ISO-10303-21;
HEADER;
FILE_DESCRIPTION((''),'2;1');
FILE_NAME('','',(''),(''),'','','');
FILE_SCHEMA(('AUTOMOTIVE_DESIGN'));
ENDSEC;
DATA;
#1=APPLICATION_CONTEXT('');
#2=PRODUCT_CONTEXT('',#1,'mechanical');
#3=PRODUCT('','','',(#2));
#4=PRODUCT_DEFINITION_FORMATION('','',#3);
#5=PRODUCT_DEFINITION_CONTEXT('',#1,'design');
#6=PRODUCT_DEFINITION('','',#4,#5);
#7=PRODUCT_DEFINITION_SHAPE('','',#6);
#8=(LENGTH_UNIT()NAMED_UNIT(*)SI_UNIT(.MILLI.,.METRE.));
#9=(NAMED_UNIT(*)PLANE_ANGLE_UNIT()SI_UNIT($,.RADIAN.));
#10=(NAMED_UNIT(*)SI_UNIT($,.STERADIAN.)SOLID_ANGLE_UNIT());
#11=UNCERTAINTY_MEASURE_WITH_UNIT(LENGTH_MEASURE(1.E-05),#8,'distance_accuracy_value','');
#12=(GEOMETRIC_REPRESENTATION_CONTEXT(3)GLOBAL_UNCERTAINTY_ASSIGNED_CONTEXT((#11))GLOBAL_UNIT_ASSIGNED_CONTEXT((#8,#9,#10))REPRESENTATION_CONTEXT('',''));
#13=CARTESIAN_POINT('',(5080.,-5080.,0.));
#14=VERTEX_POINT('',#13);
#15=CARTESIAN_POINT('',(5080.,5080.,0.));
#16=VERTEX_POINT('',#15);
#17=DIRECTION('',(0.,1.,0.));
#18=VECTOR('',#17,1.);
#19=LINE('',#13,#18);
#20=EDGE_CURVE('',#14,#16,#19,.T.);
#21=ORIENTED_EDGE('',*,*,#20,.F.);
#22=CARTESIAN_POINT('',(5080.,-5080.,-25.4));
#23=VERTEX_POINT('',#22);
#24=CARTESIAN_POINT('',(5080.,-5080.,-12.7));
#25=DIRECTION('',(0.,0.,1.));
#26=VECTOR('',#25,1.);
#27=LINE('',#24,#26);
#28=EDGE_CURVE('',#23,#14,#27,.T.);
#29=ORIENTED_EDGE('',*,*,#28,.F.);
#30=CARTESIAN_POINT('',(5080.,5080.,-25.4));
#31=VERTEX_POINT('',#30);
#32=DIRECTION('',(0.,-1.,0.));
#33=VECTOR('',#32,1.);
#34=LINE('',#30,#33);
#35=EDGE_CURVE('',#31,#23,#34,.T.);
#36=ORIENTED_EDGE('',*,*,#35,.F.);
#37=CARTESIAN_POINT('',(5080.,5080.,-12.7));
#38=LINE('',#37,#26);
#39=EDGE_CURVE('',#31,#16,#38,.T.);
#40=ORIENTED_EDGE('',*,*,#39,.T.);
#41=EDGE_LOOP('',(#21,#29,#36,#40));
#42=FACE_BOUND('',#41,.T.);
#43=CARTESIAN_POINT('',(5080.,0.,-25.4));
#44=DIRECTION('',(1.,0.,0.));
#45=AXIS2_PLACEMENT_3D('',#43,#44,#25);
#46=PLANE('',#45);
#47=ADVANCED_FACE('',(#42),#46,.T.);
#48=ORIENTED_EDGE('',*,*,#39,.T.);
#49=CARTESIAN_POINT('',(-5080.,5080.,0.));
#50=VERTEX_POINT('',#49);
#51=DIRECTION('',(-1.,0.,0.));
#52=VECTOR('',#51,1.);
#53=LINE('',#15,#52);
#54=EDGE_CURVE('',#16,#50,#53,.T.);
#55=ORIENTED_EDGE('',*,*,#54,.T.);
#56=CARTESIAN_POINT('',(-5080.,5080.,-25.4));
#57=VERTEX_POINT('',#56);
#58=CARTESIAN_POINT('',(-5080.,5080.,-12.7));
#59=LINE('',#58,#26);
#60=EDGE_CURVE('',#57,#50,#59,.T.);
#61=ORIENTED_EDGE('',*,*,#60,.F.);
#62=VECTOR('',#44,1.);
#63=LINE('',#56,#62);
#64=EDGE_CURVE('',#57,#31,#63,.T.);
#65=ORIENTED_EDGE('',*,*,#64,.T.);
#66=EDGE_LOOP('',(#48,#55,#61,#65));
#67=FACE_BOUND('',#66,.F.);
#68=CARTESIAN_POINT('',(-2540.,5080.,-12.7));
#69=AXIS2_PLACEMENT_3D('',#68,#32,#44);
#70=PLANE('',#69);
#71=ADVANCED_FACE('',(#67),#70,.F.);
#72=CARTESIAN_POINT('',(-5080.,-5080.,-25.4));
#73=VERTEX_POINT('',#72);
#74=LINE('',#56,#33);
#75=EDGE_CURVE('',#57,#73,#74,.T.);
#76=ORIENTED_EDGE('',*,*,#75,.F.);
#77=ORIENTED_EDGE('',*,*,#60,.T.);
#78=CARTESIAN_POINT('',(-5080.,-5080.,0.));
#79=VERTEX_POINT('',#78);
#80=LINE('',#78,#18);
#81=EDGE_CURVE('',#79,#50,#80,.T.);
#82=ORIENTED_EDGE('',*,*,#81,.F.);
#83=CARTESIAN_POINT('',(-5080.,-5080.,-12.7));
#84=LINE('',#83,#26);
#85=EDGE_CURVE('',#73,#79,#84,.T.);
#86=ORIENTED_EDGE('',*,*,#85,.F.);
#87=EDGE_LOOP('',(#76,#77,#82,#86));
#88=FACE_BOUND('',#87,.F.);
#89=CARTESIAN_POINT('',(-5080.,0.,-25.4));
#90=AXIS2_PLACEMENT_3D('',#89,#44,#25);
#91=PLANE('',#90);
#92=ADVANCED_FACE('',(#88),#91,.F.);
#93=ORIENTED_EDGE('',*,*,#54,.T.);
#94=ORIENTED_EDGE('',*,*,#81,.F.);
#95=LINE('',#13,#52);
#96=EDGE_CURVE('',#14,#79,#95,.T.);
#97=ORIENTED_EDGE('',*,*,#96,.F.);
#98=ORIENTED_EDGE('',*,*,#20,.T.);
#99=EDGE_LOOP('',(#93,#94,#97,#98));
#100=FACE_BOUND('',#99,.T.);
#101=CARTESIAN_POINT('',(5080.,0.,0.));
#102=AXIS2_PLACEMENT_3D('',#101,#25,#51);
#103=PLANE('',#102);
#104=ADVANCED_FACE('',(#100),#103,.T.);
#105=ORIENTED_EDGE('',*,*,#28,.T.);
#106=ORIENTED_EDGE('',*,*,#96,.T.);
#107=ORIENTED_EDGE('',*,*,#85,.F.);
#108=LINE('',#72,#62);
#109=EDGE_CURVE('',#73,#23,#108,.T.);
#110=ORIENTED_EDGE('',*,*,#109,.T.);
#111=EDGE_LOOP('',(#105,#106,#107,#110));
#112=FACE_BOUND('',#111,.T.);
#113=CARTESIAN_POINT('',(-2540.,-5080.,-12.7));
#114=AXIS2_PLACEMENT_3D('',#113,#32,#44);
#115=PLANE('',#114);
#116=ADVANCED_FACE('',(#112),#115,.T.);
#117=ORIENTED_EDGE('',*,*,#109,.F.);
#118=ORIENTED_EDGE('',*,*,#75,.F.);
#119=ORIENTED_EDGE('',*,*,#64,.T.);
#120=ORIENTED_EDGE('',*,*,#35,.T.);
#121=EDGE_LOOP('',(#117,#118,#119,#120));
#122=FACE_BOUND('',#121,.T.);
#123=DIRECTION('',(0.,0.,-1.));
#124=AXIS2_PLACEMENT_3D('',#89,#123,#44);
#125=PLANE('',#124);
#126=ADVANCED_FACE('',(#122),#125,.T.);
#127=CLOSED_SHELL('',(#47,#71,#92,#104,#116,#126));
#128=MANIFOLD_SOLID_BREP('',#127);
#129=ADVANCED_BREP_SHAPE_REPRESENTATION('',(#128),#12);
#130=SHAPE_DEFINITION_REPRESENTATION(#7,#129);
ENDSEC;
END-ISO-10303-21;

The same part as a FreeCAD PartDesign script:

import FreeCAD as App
import Part
import Sketcher

V = App.Vector
Q = App.Units.Quantity

doc = App.newDocument("Part")
params = doc.addObject("Spreadsheet::Sheet", "Params")
for row, (alias, value) in enumerate([
    ("sketch1_width", "400 in"),
    ("sketch1_height", "1 in"),
    ("pad1_length", "200 in"),
    ("pad1_length2", "200 in"),
], start=1):
    params.set(f"A{row}", alias)
    params.set(f"B{row}", "=" + value)
    params.setAlias(f"B{row}", alias)

body = doc.addObject("PartDesign::Body", "Body")

sketch1 = body.newObject("Sketcher::SketchObject", "Sketch")
sketch1.AttachmentSupport = (doc.getObject("XZ_Plane"), [""])
sketch1.MapMode = "FlatFace"
sketch1.addGeometry(Part.LineSegment(V(-5080, 0, 0), V(-5080, -25.4, 0)), False)
sketch1.addGeometry(Part.LineSegment(V(-5080, -25.4, 0), V(5080, -25.4, 0)), False)
sketch1.addGeometry(Part.LineSegment(V(5080, -25.4, 0), V(5080, 0, 0)), False)
sketch1.addGeometry(Part.LineSegment(V(5080, 0, 0), V(-5080, 0, 0)), False)
sketch1.addConstraint(Sketcher.Constraint("Coincident", 0, 2, 1, 1))
sketch1.addConstraint(Sketcher.Constraint("Coincident", 1, 2, 2, 1))
sketch1.addConstraint(Sketcher.Constraint("Coincident", 2, 2, 3, 1))
sketch1.addConstraint(Sketcher.Constraint("Coincident", 3, 2, 0, 1))
sketch1.addConstraint(Sketcher.Constraint("Vertical", 0))
sketch1.addConstraint(Sketcher.Constraint("Horizontal", 1))
sketch1.addConstraint(Sketcher.Constraint("Vertical", 2))
sketch1.addConstraint(Sketcher.Constraint("Horizontal", 3))
sketch1.addConstraint(Sketcher.Constraint("Symmetric", 2, 2, 3, 2, -1, 1))
sketch1.addConstraint(Sketcher.Constraint("DistanceX", 1, 1, 1, 2, Q("400 in")))
sketch1.addConstraint(Sketcher.Constraint("DistanceY", 0, 2, 0, 1, Q("1 in")))
sketch1.setExpression("Constraints[9]", "Params.sketch1_width")
sketch1.setExpression("Constraints[10]", "Params.sketch1_height")
pad1 = body.newObject("PartDesign::Pad", "Pad")
pad1.Profile = sketch1
pad1.Type = "TwoLengths"
pad1.setExpression("Length", "Params.pad1_length")
pad1.setExpression("Length2", "Params.pad1_length2")

doc.recompute()
